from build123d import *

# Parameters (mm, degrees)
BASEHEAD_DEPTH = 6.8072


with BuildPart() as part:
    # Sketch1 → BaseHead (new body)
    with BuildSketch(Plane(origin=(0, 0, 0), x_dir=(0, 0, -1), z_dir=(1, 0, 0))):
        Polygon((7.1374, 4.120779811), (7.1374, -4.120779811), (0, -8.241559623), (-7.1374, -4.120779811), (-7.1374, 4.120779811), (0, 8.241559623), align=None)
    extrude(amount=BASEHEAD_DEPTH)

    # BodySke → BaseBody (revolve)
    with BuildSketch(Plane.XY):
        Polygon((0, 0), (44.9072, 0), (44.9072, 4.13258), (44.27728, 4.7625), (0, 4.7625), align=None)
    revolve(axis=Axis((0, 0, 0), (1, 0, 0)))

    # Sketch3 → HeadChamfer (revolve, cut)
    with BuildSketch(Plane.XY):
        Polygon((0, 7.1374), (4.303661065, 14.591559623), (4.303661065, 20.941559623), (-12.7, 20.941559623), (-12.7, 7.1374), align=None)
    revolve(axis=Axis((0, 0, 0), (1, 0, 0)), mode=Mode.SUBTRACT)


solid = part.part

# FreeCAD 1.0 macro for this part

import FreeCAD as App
import Part
import Sketcher

V = App.Vector
Q = App.Units.Quantity


def add_polygon(sketch, points):
    """Adds a closed chain of lines whose ends are joined by coincident constraints."""
    first, n = sketch.GeometryCount, len(points)
    for a, b in zip(points, points[1:] + points[:1]):
        sketch.addGeometry(Part.LineSegment(App.Vector(*a, 0), App.Vector(*b, 0)), False)
    for i in range(n):
        sketch.addConstraint(Sketcher.Constraint("Coincident", first + i, 2, first + (i + 1) % n, 1))

doc = App.newDocument("Part")
params = doc.addObject("Spreadsheet::Sheet", "Params")
for row, (alias, value) in enumerate([
    ("pad1_length", "0.268 in"),
    ("sketch2_width", "1.768 in"),
    ("sketch2_height", "0.1875 in"),
    ("revolution_angle", "360 deg"),
    ("sketch3_width", "0.5 in"),
    ("sketch3_height", "0.25 in"),
    ("groove_angle", "360 deg"),
], start=1):
    params.set(f"A{row}", alias)
    params.set(f"B{row}", "=" + value)
    params.setAlias(f"B{row}", alias)

body = doc.addObject("PartDesign::Body", "Body")

# Sketch on YZ plane
sketch1 = doc.addObject("Sketcher::SketchObject", "Sketch")
body.addObject(sketch1)
sketch1.AttachmentSupport = (doc.YZ_Plane, [""])
sketch1.MapMode = "FlatFace"
add_polygon(sketch1, [(-4, -7), (4, -7), (8, 0), (4, 7), (-4, 7), (-8, 0)])  # lines 0-5
sketch1.addConstraint(Sketcher.Constraint("Horizontal", 0))
sketch1.addConstraint(Sketcher.Constraint("Horizontal", 3))
sketch1.addConstraint(Sketcher.Constraint("Symmetric", 0, 2, 3, 2, -1, 1))
sketch1.addConstraint(Sketcher.Constraint("Symmetric", 1, 2, 4, 2, -1, 1))
sketch1.addConstraint(Sketcher.Constraint("PointOnObject", 1, 2, -1))
sketch1.addConstraint(Sketcher.Constraint("Parallel", 2, 5))
sketch1.addConstraint(Sketcher.Constraint("Vertical", 0, 2, 2, 2))
sketch1.addConstraint(Sketcher.Constraint("Angle", 1, Q("60 deg")))
sketch1.addConstraint(Sketcher.Constraint("DistanceY", 0, 2, -1, 1, Q("0.281 in")))
sketch1.addConstraint(Sketcher.Constraint("DistanceX", 0, 1, 0, 2, Q("8.24156 mm")))
pad1 = doc.addObject("PartDesign::Pad", "Pad")
body.addObject(pad1)
pad1.Profile = sketch1
pad1.setExpression("Length", "Params.pad1_length")

# Sketch on XY plane
sketch2 = doc.addObject("Sketcher::SketchObject", "Sketch001")
body.addObject(sketch2)
sketch2.AttachmentSupport = (doc.XY_Plane, [""])
sketch2.MapMode = "FlatFace"
add_polygon(sketch2, [(0, 0), (44.9, 0), (44.9, 4.1), (44.3, 4.8), (0, 4.8)])  # lines 0-4
sketch2.addConstraint(Sketcher.Constraint("Horizontal", 0))
sketch2.addConstraint(Sketcher.Constraint("Vertical", 1))
sketch2.addConstraint(Sketcher.Constraint("Horizontal", 3))
sketch2.addConstraint(Sketcher.Constraint("Vertical", 4))
sketch2.addConstraint(Sketcher.Constraint("Coincident", 4, 2, -1, 1))
sketch2.addConstraint(Sketcher.Constraint("Angle", 2, Q("135 deg")))
sketch2.addConstraint(Sketcher.Constraint("DistanceX", 0, 1, 0, 2, Q("1.768 in")))
sketch2.addConstraint(Sketcher.Constraint("DistanceY", 4, 2, 4, 1, Q("0.1875 in")))
sketch2.addConstraint(Sketcher.Constraint("DistanceX", 3, 2, 3, 1, Q("1.7432 in")))
sketch2.setExpression("Constraints[11]", "Params.sketch2_width")
sketch2.setExpression("Constraints[12]", "Params.sketch2_height")
revolution = doc.addObject("PartDesign::Revolution", "Revolution")
body.addObject(revolution)
revolution.Profile = sketch2
revolution.ReferenceAxis = (sketch2, ["H_Axis"])
revolution.setExpression("Angle", "Params.revolution_angle")

# Sketch on XY plane
sketch3 = doc.addObject("Sketcher::SketchObject", "Sketch002")
body.addObject(sketch3)
sketch3.AttachmentSupport = (doc.XY_Plane, [""])
sketch3.MapMode = "FlatFace"
add_polygon(sketch3, [(0, 7), (4, 15), (4, 21), (-13, 21), (-13, 7)])  # lines 0-4
sketch3.addConstraint(Sketcher.Constraint("Vertical", 1))
sketch3.addConstraint(Sketcher.Constraint("Horizontal", 2))
sketch3.addConstraint(Sketcher.Constraint("Vertical", 3))
sketch3.addConstraint(Sketcher.Constraint("Horizontal", 4))
sketch3.addConstraint(Sketcher.Constraint("PointOnObject", 4, 2, -2))
sketch3.addConstraint(Sketcher.Constraint("DistanceX", 4, 1, 4, 2, Q("0.5 in")))
sketch3.addConstraint(Sketcher.Constraint("Angle", 0, Q("60 deg")))
sketch3.addConstraint(Sketcher.Constraint("DistanceY", 1, 1, 1, 2, Q("0.25 in")))
sketch3.addConstraint(Sketcher.Constraint("DistanceY", -1, 1, 3, 2, Q("0.281 in")))
sketch3.addConstraint(Sketcher.Constraint("DistanceX", 2, 2, 2, 1, Q("17.003661 mm")))
sketch3.setExpression("Constraints[10]", "Params.sketch3_width")
sketch3.setExpression("Constraints[12]", "Params.sketch3_height")
groove = doc.addObject("PartDesign::Groove", "Groove")
body.addObject(groove)
groove.Profile = sketch3
groove.ReferenceAxis = (sketch3, ["H_Axis"])
groove.setExpression("Angle", "Params.groove_angle")

doc.recompute()
